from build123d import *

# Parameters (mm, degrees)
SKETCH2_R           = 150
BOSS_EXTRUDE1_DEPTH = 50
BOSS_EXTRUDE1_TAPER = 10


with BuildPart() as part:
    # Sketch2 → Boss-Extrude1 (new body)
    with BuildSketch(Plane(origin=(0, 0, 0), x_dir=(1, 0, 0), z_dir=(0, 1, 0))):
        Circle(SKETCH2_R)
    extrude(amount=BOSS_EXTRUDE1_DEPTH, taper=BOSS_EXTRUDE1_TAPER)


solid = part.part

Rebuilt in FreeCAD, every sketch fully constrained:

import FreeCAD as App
import Part
import Sketcher
from FreeCAD import Vector
Q = App.Units.Quantity

doc = App.newDocument("Part")
body = doc.addObject("PartDesign::Body", "Body")

sketch1 = body.newObject("Sketcher::SketchObject", "Sketch")
sketch1.AttachmentSupport = (doc.getObject("XZ_Plane"), [""])
sketch1.MapMode = "FlatFace"
sketch1.addGeometry(Part.Circle(Vector(0, 0, 0), Vector(0, 0, 1), 150), False)
sketch1.addConstraint([
    Sketcher.Constraint("Coincident", 0, 3, -1, 1),
    Sketcher.Constraint("Diameter", 0, Q("300 mm")),
])
pad1 = body.newObject("PartDesign::Pad", "Pad")
pad1.Profile = sketch1
pad1.Length = 50
pad1.Reversed = True
pad1.TaperAngle = -10

doc.recompute()
